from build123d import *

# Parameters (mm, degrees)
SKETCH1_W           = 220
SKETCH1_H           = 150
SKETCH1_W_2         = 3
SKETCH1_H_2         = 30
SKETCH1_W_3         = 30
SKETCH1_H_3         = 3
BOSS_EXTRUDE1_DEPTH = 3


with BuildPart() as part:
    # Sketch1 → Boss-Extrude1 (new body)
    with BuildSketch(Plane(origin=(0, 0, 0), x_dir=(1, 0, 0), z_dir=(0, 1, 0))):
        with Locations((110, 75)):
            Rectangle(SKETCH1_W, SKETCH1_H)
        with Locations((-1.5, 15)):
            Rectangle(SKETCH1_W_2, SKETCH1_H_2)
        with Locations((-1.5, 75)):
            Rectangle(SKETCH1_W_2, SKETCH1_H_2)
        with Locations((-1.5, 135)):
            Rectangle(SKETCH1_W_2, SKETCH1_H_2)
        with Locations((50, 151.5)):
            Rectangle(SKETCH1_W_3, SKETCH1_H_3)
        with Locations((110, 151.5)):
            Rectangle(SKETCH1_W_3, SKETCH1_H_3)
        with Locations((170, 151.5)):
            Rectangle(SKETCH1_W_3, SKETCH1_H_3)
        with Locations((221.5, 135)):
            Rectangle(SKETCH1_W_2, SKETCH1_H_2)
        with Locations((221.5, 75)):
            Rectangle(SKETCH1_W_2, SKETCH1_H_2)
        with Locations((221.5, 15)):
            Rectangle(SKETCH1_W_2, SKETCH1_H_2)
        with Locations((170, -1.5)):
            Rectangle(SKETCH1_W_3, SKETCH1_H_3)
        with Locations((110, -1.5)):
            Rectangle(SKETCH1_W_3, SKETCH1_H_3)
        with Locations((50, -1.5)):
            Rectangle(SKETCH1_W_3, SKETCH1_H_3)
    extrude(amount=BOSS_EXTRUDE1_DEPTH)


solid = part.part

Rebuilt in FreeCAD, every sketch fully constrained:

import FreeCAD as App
import Part
import Sketcher
from FreeCAD import Vector

doc = App.newDocument("Part")
body = doc.addObject("PartDesign::Body", "Body")

sketch1 = doc.addObject("Sketcher::SketchObject", "Sketch")
body.addObject(sketch1)
sketch1.AttachmentSupport = (doc.XZ_Plane, [""])
sketch1.MapMode = "FlatFace"
sketch1.addGeometry([
    Part.LineSegment(Vector(0, -60, 0), Vector(0, -30, 0)),
    Part.LineSegment(Vector(0, -30, 0), Vector(-3, -30, 0)),
    Part.LineSegment(Vector(-3, -30, 0), Vector(-3, 0, 0)),
    Part.LineSegment(Vector(-3, 0, 0), Vector(35, 0, 0)),
    Part.LineSegment(Vector(35, 0, 0), Vector(35, 3, 0)),
    Part.LineSegment(Vector(35, 3, 0), Vector(65, 3, 0)),
    Part.LineSegment(Vector(65, 3, 0), Vector(65, 0, 0)),
    Part.LineSegment(Vector(65, 0, 0), Vector(95, 0, 0)),
    Part.LineSegment(Vector(95, 0, 0), Vector(95, 3, 0)),
    Part.LineSegment(Vector(95, 3, 0), Vector(125, 3, 0)),
    Part.LineSegment(Vector(125, 3, 0), Vector(125, 0, 0)),
    Part.LineSegment(Vector(125, 0, 0), Vector(155, 0, 0)),
    Part.LineSegment(Vector(155, 0, 0), Vector(155, 3, 0)),
    Part.LineSegment(Vector(155, 3, 0), Vector(185, 3, 0)),
    Part.LineSegment(Vector(185, 3, 0), Vector(185, 0, 0)),
    Part.LineSegment(Vector(185, 0, 0), Vector(223, 0, 0)),
    Part.LineSegment(Vector(223, 0, 0), Vector(223, -30, 0)),
    Part.LineSegment(Vector(223, -30, 0), Vector(220, -30, 0)),
    Part.LineSegment(Vector(220, -30, 0), Vector(220, -60, 0)),
    Part.LineSegment(Vector(220, -60, 0), Vector(223, -60, 0)),
    Part.LineSegment(Vector(223, -60, 0), Vector(223, -90, 0)),
    Part.LineSegment(Vector(223, -90, 0), Vector(220, -90, 0)),
    Part.LineSegment(Vector(220, -90, 0), Vector(220, -120, 0)),
    Part.LineSegment(Vector(220, -120, 0), Vector(223, -120, 0)),
    Part.LineSegment(Vector(223, -120, 0), Vector(223, -150, 0)),
    Part.LineSegment(Vector(223, -150, 0), Vector(185, -150, 0)),
    Part.LineSegment(Vector(185, -150, 0), Vector(185, -153, 0)),
    Part.LineSegment(Vector(185, -153, 0), Vector(155, -153, 0)),
    Part.LineSegment(Vector(155, -153, 0), Vector(155, -150, 0)),
    Part.LineSegment(Vector(155, -150, 0), Vector(125, -150, 0)),
    Part.LineSegment(Vector(125, -150, 0), Vector(125, -153, 0)),
    Part.LineSegment(Vector(125, -153, 0), Vector(95, -153, 0)),
    Part.LineSegment(Vector(95, -153, 0), Vector(95, -150, 0)),
    Part.LineSegment(Vector(95, -150, 0), Vector(65, -150, 0)),
    Part.LineSegment(Vector(65, -150, 0), Vector(65, -153, 0)),
    Part.LineSegment(Vector(65, -153, 0), Vector(35, -153, 0)),
    Part.LineSegment(Vector(35, -153, 0), Vector(35, -150, 0)),
    Part.LineSegment(Vector(35, -150, 0), Vector(-3, -150, 0)),
    Part.LineSegment(Vector(-3, -150, 0), Vector(-3, -120, 0)),
    Part.LineSegment(Vector(-3, -120, 0), Vector(0, -120, 0)),
    Part.LineSegment(Vector(0, -120, 0), Vector(0, -90, 0)),
    Part.LineSegment(Vector(0, -90, 0), Vector(-3, -90, 0)),
    Part.LineSegment(Vector(-3, -90, 0), Vector(-3, -60, 0)),
    Part.LineSegment(Vector(-3, -60, 0), Vector(0, -60, 0)),
], False)
sketch1.addConstraint([
    Sketcher.Constraint("Coincident", 0, 2, 1, 1),
    Sketcher.Constraint("Coincident", 1, 2, 2, 1),
    Sketcher.Constraint("Coincident", 2, 2, 3, 1),
    Sketcher.Constraint("Coincident", 3, 2, 4, 1),
    Sketcher.Constraint("Coincident", 4, 2, 5, 1),
    Sketcher.Constraint("Coincident", 5, 2, 6, 1),
    Sketcher.Constraint("Coincident", 6, 2, 7, 1),
    Sketcher.Constraint("Coincident", 7, 2, 8, 1),
    Sketcher.Constraint("Coincident", 8, 2, 9, 1),
    Sketcher.Constraint("Coincident", 9, 2, 10, 1),
    Sketcher.Constraint("Coincident", 10, 2, 11, 1),
    Sketcher.Constraint("Coincident", 11, 2, 12, 1),
    Sketcher.Constraint("Coincident", 12, 2, 13, 1),
    Sketcher.Constraint("Coincident", 13, 2, 14, 1),
    Sketcher.Constraint("Coincident", 14, 2, 15, 1),
    Sketcher.Constraint("Coincident", 15, 2, 16, 1),
    Sketcher.Constraint("Coincident", 16, 2, 17, 1),
    Sketcher.Constraint("Coincident", 17, 2, 18, 1),
    Sketcher.Constraint("Coincident", 18, 2, 19, 1),
    Sketcher.Constraint("Coincident", 19, 2, 20, 1),
    Sketcher.Constraint("Coincident", 20, 2, 21, 1),
    Sketcher.Constraint("Coincident", 21, 2, 22, 1),
    Sketcher.Constraint("Coincident", 22, 2, 23, 1),
    Sketcher.Constraint("Coincident", 23, 2, 24, 1),
    Sketcher.Constraint("Coincident", 24, 2, 25, 1),
    Sketcher.Constraint("Coincident", 25, 2, 26, 1),
    Sketcher.Constraint("Coincident", 26, 2, 27, 1),
    Sketcher.Constraint("Coincident", 27, 2, 28, 1),
    Sketcher.Constraint("Coincident", 28, 2, 29, 1),
    Sketcher.Constraint("Coincident", 29, 2, 30, 1),
    Sketcher.Constraint("Coincident", 30, 2, 31, 1),
    Sketcher.Constraint("Coincident", 31, 2, 32, 1),
    Sketcher.Constraint("Coincident", 32, 2, 33, 1),
    Sketcher.Constraint("Coincident", 33, 2, 34, 1),
    Sketcher.Constraint("Coincident", 34, 2, 35, 1),
    Sketcher.Constraint("Coincident", 35, 2, 36, 1),
    Sketcher.Constraint("Coincident", 36, 2, 37, 1),
    Sketcher.Constraint("Coincident", 37, 2, 38, 1),
    Sketcher.Constraint("Coincident", 38, 2, 39, 1),
    Sketcher.Constraint("Coincident", 39, 2, 40, 1),
    Sketcher.Constraint("Coincident", 40, 2, 41, 1),
    Sketcher.Constraint("Coincident", 41, 2, 42, 1),
    Sketcher.Constraint("Coincident", 42, 2, 43, 1),
    Sketcher.Constraint("Coincident", 43, 2, 0, 1),
    Sketcher.Constraint("Vertical", 0),
    Sketcher.Constraint("Horizontal", 1),
    Sketcher.Constraint("Vertical", 2),
    Sketcher.Constraint("Horizontal", 3),
    Sketcher.Constraint("Vertical", 4),
    Sketcher.Constraint("Horizontal", 5),
    Sketcher.Constraint("Vertical", 6),
    Sketcher.Constraint("Horizontal", 7),
    Sketcher.Constraint("Vertical", 8),
    Sketcher.Constraint("Horizontal", 9),
    Sketcher.Constraint("Vertical", 10),
    Sketcher.Constraint("Horizontal", 11),
    Sketcher.Constraint("Vertical", 12),
    Sketcher.Constraint("Horizontal", 13),
    Sketcher.Constraint("Vertical", 14),
    Sketcher.Constraint("Horizontal", 15),
    Sketcher.Constraint("Vertical", 16),
    Sketcher.Constraint("Horizontal", 17),
    Sketcher.Constraint("Vertical", 18),
    Sketcher.Constraint("Horizontal", 19),
    Sketcher.Constraint("Vertical", 20),
    Sketcher.Constraint("Horizontal", 21),
    Sketcher.Constraint("Vertical", 22),
    Sketcher.Constraint("Horizontal", 23),
    Sketcher.Constraint("Vertical", 24),
    Sketcher.Constraint("Horizontal", 25),
    Sketcher.Constraint("Vertical", 26),
    Sketcher.Constraint("Horizontal", 27),
    Sketcher.Constraint("Vertical", 28),
    Sketcher.Constraint("Horizontal", 29),
    Sketcher.Constraint("Vertical", 30),
    Sketcher.Constraint("Horizontal", 31),
    Sketcher.Constraint("Vertical", 32),
    Sketcher.Constraint("Horizontal", 33),
    Sketcher.Constraint("Vertical", 34),
    Sketcher.Constraint("Horizontal", 35),
    Sketcher.Constraint("Vertical", 36),
    Sketcher.Constraint("Horizontal", 37),
    Sketcher.Constraint("Vertical", 38),
    Sketcher.Constraint("Horizontal", 39),
    Sketcher.Constraint("Vertical", 40),
    Sketcher.Constraint("Horizontal", 41),
    Sketcher.Constraint("Vertical", 42),
    Sketcher.Constraint("Horizontal", 43),
    Sketcher.Constraint("PointOnObject", 0, 2, -2),
    Sketcher.Constraint("PointOnObject", 2, 2, -1),
    Sketcher.Constraint("PointOnObject", 6, 2, -1),
    Sketcher.Constraint("PointOnObject", 10, 2, -1),
    Sketcher.Constraint("PointOnObject", 14, 2, -1),
    Sketcher.Constraint("PointOnObject", 39, 2, -2),
    Sketcher.Constraint("Horizontal", 5, 2, 8, 2),
    Sketcher.Constraint("Horizontal", 9, 2, 12, 2),
    Sketcher.Constraint("Horizontal", 1, 2, 16, 2),
    Sketcher.Constraint("Horizontal", 25, 2, 28, 2),
    Sketcher.Constraint("Horizontal", 27, 2, 30, 2),
    Sketcher.Constraint("Horizontal", 29, 2, 32, 2),
    Sketcher.Constraint("Horizontal", 31, 2, 34, 2),
    Sketcher.Constraint("Horizontal", 33, 2, 36, 2),
    Sketcher.Constraint("Horizontal", 23, 2, 38, 2),
    Sketcher.Constraint("Horizontal", 21, 2, 40, 2),
    Sketcher.Constraint("Horizontal", 19, 2, 42, 2),
    Sketcher.Constraint("Vertical", 16, 2, 19, 2),
    Sketcher.Constraint("Vertical", 18, 2, 21, 2),
    Sketcher.Constraint("Vertical", 20, 2, 23, 2),
    Sketcher.Constraint("Vertical", 14, 2, 25, 2),
    Sketcher.Constraint("Vertical", 12, 2, 27, 2),
    Sketcher.Constraint("Vertical", 10, 2, 29, 2),
    Sketcher.Constraint("Vertical", 8, 2, 31, 2),
    Sketcher.Constraint("Vertical", 6, 2, 33, 2),
    Sketcher.Constraint("Vertical", 4, 2, 35, 2),
    Sketcher.Constraint("Vertical", 2, 2, 37, 2),
    Sketcher.Constraint("Vertical", 38, 2, 41, 2),
    Sketcher.Constraint("Equal", 5, 7),
    Sketcher.Constraint("Equal", 7, 9),
    Sketcher.Constraint("Equal", 9, 11),
    Sketcher.Constraint("Equal", 11, 13),
    Sketcher.Constraint("Equal", 3, 15),
    Sketcher.Constraint("Equal", 1, 17),
    Sketcher.Constraint("Equal", 35, 0),
    Sketcher.Constraint("Equal", 0, 2),
    Sketcher.Constraint("Equal", 43, 4),
    Sketcher.Constraint("Equal", 18, 20),
    Sketcher.Constraint("Equal", 20, 22),
    Sketcher.Constraint("Equal", 22, 24),
    Sketcher.Constraint("Equal", 14, 26),
    Sketcher.Constraint("DistanceX", 1, 2, 1, 1, 3.0),
    Sketcher.Constraint("DistanceX", 3, 1, 3, 2, 38.0),
    Sketcher.Constraint("DistanceX", 5, 1, 5, 2, 30.0),
])
pad1 = doc.addObject("PartDesign::Pad", "Pad")
body.addObject(pad1)
pad1.Profile = sketch1
pad1.Length = 3
pad1.Reversed = True

doc.recompute()
